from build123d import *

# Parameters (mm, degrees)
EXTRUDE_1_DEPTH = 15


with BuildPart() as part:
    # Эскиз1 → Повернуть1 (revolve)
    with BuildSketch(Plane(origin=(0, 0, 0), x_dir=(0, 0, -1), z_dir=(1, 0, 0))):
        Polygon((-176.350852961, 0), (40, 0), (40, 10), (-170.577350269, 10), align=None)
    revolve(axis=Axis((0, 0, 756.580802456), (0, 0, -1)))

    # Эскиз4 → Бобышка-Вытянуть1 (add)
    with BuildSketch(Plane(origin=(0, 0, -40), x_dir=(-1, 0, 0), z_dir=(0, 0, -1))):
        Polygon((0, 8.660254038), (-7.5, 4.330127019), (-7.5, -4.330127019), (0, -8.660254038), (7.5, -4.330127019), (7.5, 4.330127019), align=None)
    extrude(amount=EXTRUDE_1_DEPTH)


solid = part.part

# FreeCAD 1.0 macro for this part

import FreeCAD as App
import Part
import Sketcher
Q = App.Units.Quantity


def add_polygon(sketch, points):
    """Adds a closed chain of lines whose ends are joined by coincident constraints."""
    first, n = sketch.GeometryCount, len(points)
    for a, b in zip(points, points[1:] + points[:1]):
        sketch.addGeometry(Part.LineSegment(App.Vector(*a, 0), App.Vector(*b, 0)), False)
    for i in range(n):
        sketch.addConstraint(Sketcher.Constraint("Coincident", first + i, 2, first + (i + 1) % n, 1))

doc = App.newDocument("Part")
params = doc.addObject("Spreadsheet::Sheet", "Params")
for row, (alias, value) in enumerate([
    ("sketch1_width", "10 mm"),
    ("revolution_angle", "360 deg"),
    ("pad1_length", "15 mm"),
], start=1):
    params.set(f"A{row}", alias)
    params.set(f"B{row}", "=" + value)
    params.setAlias(f"B{row}", alias)

body = doc.addObject("PartDesign::Body", "Body")

sketch1 = body.newObject("Sketcher::SketchObject", "Sketch")
sketch1.AttachmentSupport = (doc.getObject("YZ_Plane"), [""])
sketch1.MapMode = "FlatFace"
add_polygon(sketch1, [(0, 176), (0, -40), (10, -40), (10, 171)])
sketch1.addConstraint([
    Sketcher.Constraint("Vertical", 0),
    Sketcher.Constraint("Horizontal", 1),
    Sketcher.Constraint("Vertical", 2),
    Sketcher.Constraint("PointOnObject", 0, 2, -2),
    Sketcher.Constraint("DistanceX", 1, 1, 1, 2, 10.0),
    Sketcher.Constraint("Angle", 3, Q("150 deg")),
    Sketcher.Constraint("DistanceY", 0, 2, -1, 1, 40.0),
    Sketcher.Constraint("DistanceY", 2, 1, 2, 2, 210.57735),
])
sketch1.setExpression("Constraints[8]", "Params.sketch1_width")
revolution = body.newObject("PartDesign::Revolution", "Revolution")
revolution.Profile = sketch1
revolution.ReferenceAxis = (sketch1, ["V_Axis"])
revolution.setExpression("Angle", "Params.revolution_angle")

sketch2 = body.newObject("Sketcher::SketchObject", "Sketch001")
sketch2.AttachmentSupport = (doc.getObject("XY_Plane"), [""])
sketch2.MapMode = "FlatFace"
sketch2.AttachmentOffset = App.Placement(App.Vector(0, 0, -40), App.Rotation())
add_polygon(sketch2, [(0, 9), (8, 4), (8, -4), (0, -9), (-8, -4), (-8, 4)])
sketch2.addConstraint([
    Sketcher.Constraint("Vertical", 1),
    Sketcher.Constraint("Vertical", 4),
    Sketcher.Constraint("Symmetric", 0, 2, 3, 2, -1, 1),
    Sketcher.Constraint("Symmetric", 2, 2, 5, 2, -1, 1),
    Sketcher.Constraint("PointOnObject", 2, 2, -2),
    Sketcher.Constraint("Parallel", 2, 5),
    Sketcher.Constraint("Horizontal", 1, 2, 3, 2),
    Sketcher.Constraint("Angle", 0, Q("-30 deg")),
    Sketcher.Constraint("DistanceX", 3, 2, 1, 2, 15.0),
    Sketcher.Constraint("DistanceY", 1, 2, 1, 1, 8.660254),
])
pad1 = body.newObject("PartDesign::Pad", "Pad")
pad1.Profile = sketch2
pad1.setExpression("Length", "Params.pad1_length")
pad1.Reversed = True

doc.recompute()
